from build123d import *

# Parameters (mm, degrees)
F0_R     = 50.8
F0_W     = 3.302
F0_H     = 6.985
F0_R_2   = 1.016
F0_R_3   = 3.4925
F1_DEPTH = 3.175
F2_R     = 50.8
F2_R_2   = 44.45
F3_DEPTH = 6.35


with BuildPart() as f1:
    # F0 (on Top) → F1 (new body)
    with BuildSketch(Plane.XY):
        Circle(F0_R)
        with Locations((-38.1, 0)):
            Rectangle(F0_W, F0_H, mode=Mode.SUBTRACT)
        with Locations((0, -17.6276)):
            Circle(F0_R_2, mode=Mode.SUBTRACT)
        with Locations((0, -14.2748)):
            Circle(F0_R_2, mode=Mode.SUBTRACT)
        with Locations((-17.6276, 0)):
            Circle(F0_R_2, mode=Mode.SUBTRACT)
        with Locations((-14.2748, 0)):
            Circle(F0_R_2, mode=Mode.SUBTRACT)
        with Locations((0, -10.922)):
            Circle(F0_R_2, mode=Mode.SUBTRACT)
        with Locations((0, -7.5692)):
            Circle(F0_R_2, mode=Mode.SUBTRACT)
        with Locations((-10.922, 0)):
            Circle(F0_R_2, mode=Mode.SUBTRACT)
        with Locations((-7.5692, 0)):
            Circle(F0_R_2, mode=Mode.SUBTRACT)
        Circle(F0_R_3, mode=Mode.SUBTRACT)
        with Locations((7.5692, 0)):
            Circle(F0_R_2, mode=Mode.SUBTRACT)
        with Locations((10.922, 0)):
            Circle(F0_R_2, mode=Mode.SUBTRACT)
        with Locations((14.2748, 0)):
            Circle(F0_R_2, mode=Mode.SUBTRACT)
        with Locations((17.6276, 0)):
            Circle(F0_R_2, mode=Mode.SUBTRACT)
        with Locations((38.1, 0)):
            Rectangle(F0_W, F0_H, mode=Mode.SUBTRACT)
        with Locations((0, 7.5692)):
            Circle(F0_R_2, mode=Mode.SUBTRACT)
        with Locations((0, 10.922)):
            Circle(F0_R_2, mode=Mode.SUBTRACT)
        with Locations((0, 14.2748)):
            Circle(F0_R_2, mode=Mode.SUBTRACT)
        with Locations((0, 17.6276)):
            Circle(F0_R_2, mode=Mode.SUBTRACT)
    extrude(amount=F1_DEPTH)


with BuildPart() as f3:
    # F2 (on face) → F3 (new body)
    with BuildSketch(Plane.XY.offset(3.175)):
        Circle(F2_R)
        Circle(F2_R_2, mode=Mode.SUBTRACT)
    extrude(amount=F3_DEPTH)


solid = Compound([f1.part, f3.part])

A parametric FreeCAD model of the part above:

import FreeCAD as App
import Part
import Sketcher

V = App.Vector
Q = App.Units.Quantity

doc = App.newDocument("Part")
params = doc.addObject("Spreadsheet::Sheet", "Params")
for row, (alias, value) in enumerate([
    ("sketch1_diameter", "4 in"),
    ("sketch1_diameter2", "0.08 in"),
    ("sketch1_diameter3", "0.275 in"),
    ("sketch1_width", "0.13 in"),
    ("sketch1_height", "0.275 in"),
    ("pad1_length", "0.125 in"),
    ("sketch2_diameter", "4 in"),
    ("sketch2_diameter2", "3.5 in"),
    ("pad2_length", "0.25 in"),
], start=1):
    params.set(f"A{row}", alias)
    params.set(f"B{row}", "=" + value)
    params.setAlias(f"B{row}", alias)

body = doc.addObject("PartDesign::Body", "Body")

# Sketch on XY plane
sketch1 = body.newObject("Sketcher::SketchObject", "Sketch")
sketch1.AttachmentSupport = (doc.getObject("XY_Plane"), [""])
sketch1.MapMode = "FlatFace"
sketch1.addGeometry(Part.Circle(V(0, 0, 0), V(0, 0, 1), 50.8), False)
sketch1.addGeometry(Part.Circle(V(0, -17.6, 0), V(0, 0, 1), 1), False)
sketch1.addGeometry(Part.Circle(V(0, -14.3, 0), V(0, 0, 1), 1), False)
sketch1.addGeometry(Part.Circle(V(0, -10.9, 0), V(0, 0, 1), 1), False)
sketch1.addGeometry(Part.Circle(V(0, -7.6, 0), V(0, 0, 1), 1), False)
sketch1.addGeometry(Part.LineSegment(V(-36.4, -3.5, 0), V(-39.8, -3.5, 0)), False)
sketch1.addGeometry(Part.LineSegment(V(-39.8, -3.5, 0), V(-39.8, 3.5, 0)), False)
sketch1.addGeometry(Part.LineSegment(V(-39.8, 3.5, 0), V(-36.4, 3.5, 0)), False)
sketch1.addGeometry(Part.LineSegment(V(-36.4, 3.5, 0), V(-36.4, -3.5, 0)), False)
sketch1.addGeometry(Part.Circle(V(-17.6, 0, 0), V(0, 0, 1), 1), False)
sketch1.addGeometry(Part.Circle(V(-14.3, 0, 0), V(0, 0, 1), 1), False)
sketch1.addGeometry(Part.Circle(V(-10.9, 0, 0), V(0, 0, 1), 1), False)
sketch1.addGeometry(Part.Circle(V(-7.6, 0, 0), V(0, 0, 1), 1), False)
sketch1.addGeometry(Part.Circle(V(0, 0, 0), V(0, 0, 1), 3.5), False)
sketch1.addGeometry(Part.Circle(V(7.6, 0, 0), V(0, 0, 1), 1), False)
sketch1.addGeometry(Part.Circle(V(10.9, 0, 0), V(0, 0, 1), 1), False)
sketch1.addGeometry(Part.Circle(V(14.3, 0, 0), V(0, 0, 1), 1), False)
sketch1.addGeometry(Part.Circle(V(17.6, 0, 0), V(0, 0, 1), 1), False)
sketch1.addGeometry(Part.Circle(V(0, 7.6, 0), V(0, 0, 1), 1), False)
sketch1.addGeometry(Part.LineSegment(V(39.8, -3.5, 0), V(36.4, -3.5, 0)), False)
sketch1.addGeometry(Part.LineSegment(V(36.4, -3.5, 0), V(36.4, 3.5, 0)), False)
sketch1.addGeometry(Part.LineSegment(V(36.4, 3.5, 0), V(39.8, 3.5, 0)), False)
sketch1.addGeometry(Part.LineSegment(V(39.8, 3.5, 0), V(39.8, -3.5, 0)), False)
sketch1.addGeometry(Part.Circle(V(0, 10.9, 0), V(0, 0, 1), 1), False)
sketch1.addGeometry(Part.Circle(V(0, 14.3, 0), V(0, 0, 1), 1), False)
sketch1.addGeometry(Part.Circle(V(0, 17.6, 0), V(0, 0, 1), 1), False)
sketch1.addConstraint(Sketcher.Constraint("Coincident", 5, 2, 6, 1))
sketch1.addConstraint(Sketcher.Constraint("Coincident", 6, 2, 7, 1))
sketch1.addConstraint(Sketcher.Constraint("Coincident", 7, 2, 8, 1))
sketch1.addConstraint(Sketcher.Constraint("Coincident", 8, 2, 5, 1))
sketch1.addConstraint(Sketcher.Constraint("Coincident", 19, 2, 20, 1))
sketch1.addConstraint(Sketcher.Constraint("Coincident", 20, 2, 21, 1))
sketch1.addConstraint(Sketcher.Constraint("Coincident", 21, 2, 22, 1))
sketch1.addConstraint(Sketcher.Constraint("Coincident", 22, 2, 19, 1))
sketch1.addConstraint(Sketcher.Constraint("Horizontal", 5))
sketch1.addConstraint(Sketcher.Constraint("Vertical", 6))
sketch1.addConstraint(Sketcher.Constraint("Horizontal", 7))
sketch1.addConstraint(Sketcher.Constraint("Vertical", 8))
sketch1.addConstraint(Sketcher.Constraint("Horizontal", 19))
sketch1.addConstraint(Sketcher.Constraint("Vertical", 20))
sketch1.addConstraint(Sketcher.Constraint("Horizontal", 21))
sketch1.addConstraint(Sketcher.Constraint("Vertical", 22))
sketch1.addConstraint(Sketcher.Constraint("Coincident", 0, 3, -1, 1))
sketch1.addConstraint(Sketcher.Constraint("Coincident", 13, 3, -1, 1))
sketch1.addConstraint(Sketcher.Constraint("Equal", 1, 2))
sketch1.addConstraint(Sketcher.Constraint("Equal", 2, 3))
sketch1.addConstraint(Sketcher.Constraint("Equal", 3, 4))
sketch1.addConstraint(Sketcher.Constraint("Equal", 4, 9))
sketch1.addConstraint(Sketcher.Constraint("Equal", 9, 10))
sketch1.addConstraint(Sketcher.Constraint("Equal", 10, 11))
sketch1.addConstraint(Sketcher.Constraint("Equal", 11, 12))
sketch1.addConstraint(Sketcher.Constraint("Equal", 12, 14))
sketch1.addConstraint(Sketcher.Constraint("Equal", 14, 15))
sketch1.addConstraint(Sketcher.Constraint("Equal", 15, 16))
sketch1.addConstraint(Sketcher.Constraint("Equal", 16, 17))
sketch1.addConstraint(Sketcher.Constraint("Equal", 17, 18))
sketch1.addConstraint(Sketcher.Constraint("Equal", 18, 23))
sketch1.addConstraint(Sketcher.Constraint("Equal", 23, 24))
sketch1.addConstraint(Sketcher.Constraint("Equal", 24, 25))
sketch1.addConstraint(Sketcher.Constraint("Symmetric", 12, 3, 14, 3, -1, 1))
sketch1.addConstraint(Sketcher.Constraint("Symmetric", 11, 3, 15, 3, -1, 1))
sketch1.addConstraint(Sketcher.Constraint("Symmetric", 10, 3, 16, 3, -1, 1))
sketch1.addConstraint(Sketcher.Constraint("Symmetric", 9, 3, 17, 3, -1, 1))
sketch1.addConstraint(Sketcher.Constraint("Symmetric", 4, 3, 18, 3, -1, 1))
sketch1.addConstraint(Sketcher.Constraint("Symmetric", 3, 3, 23, 3, -1, 1))
sketch1.addConstraint(Sketcher.Constraint("Symmetric", 2, 3, 24, 3, -1, 1))
sketch1.addConstraint(Sketcher.Constraint("Symmetric", 1, 3, 25, 3, -1, 1))
sketch1.addConstraint(Sketcher.Constraint("Symmetric", 7, 2, 19, 2, -1, 1))
sketch1.addConstraint(Sketcher.Constraint("Symmetric", 5, 2, 21, 2, -1, 1))
sketch1.addConstraint(Sketcher.Constraint("PointOnObject", 1, 3, -2))
sketch1.addConstraint(Sketcher.Constraint("PointOnObject", 2, 3, -2))
sketch1.addConstraint(Sketcher.Constraint("PointOnObject", 3, 3, -2))
sketch1.addConstraint(Sketcher.Constraint("PointOnObject", 4, 3, -2))
sketch1.addConstraint(Sketcher.Constraint("PointOnObject", 9, 3, -1))
sketch1.addConstraint(Sketcher.Constraint("PointOnObject", 10, 3, -1))
sketch1.addConstraint(Sketcher.Constraint("PointOnObject", 11, 3, -1))
sketch1.addConstraint(Sketcher.Constraint("PointOnObject", 12, 3, -1))
sketch1.addConstraint(Sketcher.Constraint("Horizontal", 8, 2, 19, 2))
sketch1.addConstraint(Sketcher.Constraint("Diameter", 0, Q("4 in")))
sketch1.addConstraint(Sketcher.Constraint("Diameter", 1, Q("0.08 in")))
sketch1.addConstraint(Sketcher.Constraint("Diameter", 13, Q("0.275 in")))
sketch1.addConstraint(Sketcher.Constraint("DistanceX", 5, 2, 5, 1, Q("0.13 in")))
sketch1.addConstraint(Sketcher.Constraint("DistanceY", 6, 1, 6, 2, Q("0.275 in")))
sketch1.addConstraint(Sketcher.Constraint("DistanceY", 3, 3, -1, 1, Q("0.43 in")))
sketch1.addConstraint(Sketcher.Constraint("DistanceX", 11, 3, -1, 1, Q("0.43 in")))
sketch1.addConstraint(Sketcher.Constraint("DistanceY", 1, 3, -1, 1, Q("0.694 in")))
sketch1.addConstraint(Sketcher.Constraint("DistanceY", 2, 3, -1, 1, Q("0.562 in")))
sketch1.addConstraint(Sketcher.Constraint("DistanceY", 4, 3, -1, 1, Q("0.298 in")))
sketch1.addConstraint(Sketcher.Constraint("DistanceX", 9, 3, -1, 1, Q("0.694 in")))
sketch1.addConstraint(Sketcher.Constraint("DistanceX", 10, 3, -1, 1, Q("0.562 in")))
sketch1.addConstraint(Sketcher.Constraint("DistanceX", 12, 3, -1, 1, Q("0.298 in")))
sketch1.addConstraint(Sketcher.Constraint("DistanceX", 5, 2, -1, 1, Q("1.565 in")))
sketch1.setExpression("Constraints[52]", "Params.sketch1_diameter")
sketch1.setExpression("Constraints[53]", "Params.sketch1_diameter2")
sketch1.setExpression("Constraints[54]", "Params.sketch1_diameter3")
sketch1.setExpression("Constraints[55]", "Params.sketch1_width")
sketch1.setExpression("Constraints[56]", "Params.sketch1_height")
pad1 = body.newObject("PartDesign::Pad", "Pad")
pad1.Profile = sketch1
pad1.setExpression("Length", "Params.pad1_length")
body2 = doc.addObject("PartDesign::Body", "Body001")

# Sketch on XY plane
sketch2 = body2.newObject("Sketcher::SketchObject", "Sketch001")
sketch2.AttachmentSupport = (doc.getObject("XY_Plane001"), [""])
sketch2.MapMode = "FlatFace"
sketch2.AttachmentOffset = App.Placement(V(0, 0, 0.125 * 25.4), App.Rotation())
sketch2.addGeometry(Part.Circle(V(0, 0, 0), V(0, 0, 1), 51), False)
sketch2.addGeometry(Part.Circle(V(0, 0, 0), V(0, 0, 1), 44), False)
sketch2.addConstraint(Sketcher.Constraint("Coincident", 0, 3, -1, 1))
sketch2.addConstraint(Sketcher.Constraint("Coincident", 1, 3, -1, 1))
sketch2.addConstraint(Sketcher.Constraint("Diameter", 0, Q("4 in")))
sketch2.addConstraint(Sketcher.Constraint("Diameter", 1, Q("3.5 in")))
sketch2.setExpression("Constraints[2]", "Params.sketch2_diameter")
sketch2.setExpression("Constraints[3]", "Params.sketch2_diameter2")
pad2 = body2.newObject("PartDesign::Pad", "Pad001")
pad2.Profile = sketch2
pad2.setExpression("Length", "Params.pad2_length")

doc.recompute()
